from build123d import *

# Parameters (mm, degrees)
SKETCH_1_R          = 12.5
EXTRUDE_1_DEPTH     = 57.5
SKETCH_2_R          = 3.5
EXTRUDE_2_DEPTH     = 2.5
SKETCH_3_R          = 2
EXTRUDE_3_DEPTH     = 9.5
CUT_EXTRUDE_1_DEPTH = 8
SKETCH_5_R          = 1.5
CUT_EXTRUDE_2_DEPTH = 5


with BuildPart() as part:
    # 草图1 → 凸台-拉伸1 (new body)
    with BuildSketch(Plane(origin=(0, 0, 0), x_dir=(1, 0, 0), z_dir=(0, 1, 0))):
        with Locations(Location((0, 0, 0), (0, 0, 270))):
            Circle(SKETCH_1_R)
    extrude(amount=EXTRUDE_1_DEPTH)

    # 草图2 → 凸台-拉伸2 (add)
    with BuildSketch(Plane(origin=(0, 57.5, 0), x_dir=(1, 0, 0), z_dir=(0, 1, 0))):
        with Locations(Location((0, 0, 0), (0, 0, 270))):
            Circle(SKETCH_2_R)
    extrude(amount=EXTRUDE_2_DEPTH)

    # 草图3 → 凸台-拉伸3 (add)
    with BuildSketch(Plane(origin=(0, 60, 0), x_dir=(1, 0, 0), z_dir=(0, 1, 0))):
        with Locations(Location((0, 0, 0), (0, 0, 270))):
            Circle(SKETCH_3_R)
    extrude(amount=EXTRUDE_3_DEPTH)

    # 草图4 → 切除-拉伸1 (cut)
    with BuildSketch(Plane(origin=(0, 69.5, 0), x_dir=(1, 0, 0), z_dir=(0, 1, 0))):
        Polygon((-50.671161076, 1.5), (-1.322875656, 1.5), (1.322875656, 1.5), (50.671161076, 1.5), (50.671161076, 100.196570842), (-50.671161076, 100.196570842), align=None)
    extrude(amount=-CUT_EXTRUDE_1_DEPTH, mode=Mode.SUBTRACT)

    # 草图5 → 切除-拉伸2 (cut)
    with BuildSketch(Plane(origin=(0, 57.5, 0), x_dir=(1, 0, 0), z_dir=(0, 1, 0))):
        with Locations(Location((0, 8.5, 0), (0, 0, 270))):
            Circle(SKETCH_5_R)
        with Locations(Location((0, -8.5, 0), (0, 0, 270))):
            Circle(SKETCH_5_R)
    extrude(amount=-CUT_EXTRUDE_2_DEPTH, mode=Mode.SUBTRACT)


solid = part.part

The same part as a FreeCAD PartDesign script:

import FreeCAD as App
import Part
import Sketcher
Q = App.Units.Quantity

doc = App.newDocument("Part")
body = doc.addObject("PartDesign::Body", "Body")

# Sketch on XZ plane
sketch1 = doc.addObject("Sketcher::SketchObject", "Sketch")
body.addObject(sketch1)
sketch1.AttachmentSupport = (doc.XZ_Plane, [""])
sketch1.MapMode = "FlatFace"
sketch1.addGeometry(Part.Circle(App.Vector(0, 0, 0), App.Vector(0, 0, 1), 12), False)
sketch1.addConstraint([
    Sketcher.Constraint("Coincident", 0, 3, -1, 1),
    Sketcher.Constraint("Diameter", 0, Q("25 mm")),
])
pad1 = doc.addObject("PartDesign::Pad", "Pad")
body.addObject(pad1)
pad1.Profile = sketch1
pad1.Length = 57.5
pad1.Reversed = True

# Sketch on XZ plane
sketch2 = doc.addObject("Sketcher::SketchObject", "Sketch001")
body.addObject(sketch2)
sketch2.AttachmentSupport = (doc.XZ_Plane, [""])
sketch2.MapMode = "FlatFace"
sketch2.AttachmentOffset = App.Placement(App.Vector(0, 0, -57.5), App.Rotation())
sketch2.addGeometry(Part.Circle(App.Vector(0, 0, 0), App.Vector(0, 0, 1), 3.5), False)
sketch2.addConstraint([
    Sketcher.Constraint("Coincident", 0, 3, -1, 1),
    Sketcher.Constraint("Diameter", 0, Q("7 mm")),
])
pad2 = doc.addObject("PartDesign::Pad", "Pad001")
body.addObject(pad2)
pad2.Profile = sketch2
pad2.Length = 2.5
pad2.Reversed = True

# Sketch on XZ plane
sketch3 = doc.addObject("Sketcher::SketchObject", "Sketch002")
body.addObject(sketch3)
sketch3.AttachmentSupport = (doc.XZ_Plane, [""])
sketch3.MapMode = "FlatFace"
sketch3.AttachmentOffset = App.Placement(App.Vector(0, 0, -60), App.Rotation())
sketch3.addGeometry(Part.Circle(App.Vector(0, 0, 0), App.Vector(0, 0, 1), 2), False)
sketch3.addConstraint([
    Sketcher.Constraint("Coincident", 0, 3, -1, 1),
    Sketcher.Constraint("Diameter", 0, Q("4 mm")),
])
pad3 = doc.addObject("PartDesign::Pad", "Pad002")
body.addObject(pad3)
pad3.Profile = sketch3
pad3.Length = 9.5
pad3.Reversed = True

# Sketch on XZ plane
sketch4 = doc.addObject("Sketcher::SketchObject", "Sketch003")
body.addObject(sketch4)
sketch4.AttachmentSupport = (doc.XZ_Plane, [""])
sketch4.MapMode = "FlatFace"
sketch4.AttachmentOffset = App.Placement(App.Vector(0, 0, -69.5), App.Rotation())
sketch4.addGeometry([
    Part.LineSegment(App.Vector(-51, -2, 0), App.Vector(51, -2, 0)),
    Part.LineSegment(App.Vector(51, -2, 0), App.Vector(51, -100, 0)),
    Part.LineSegment(App.Vector(51, -100, 0), App.Vector(-51, -100, 0)),
    Part.LineSegment(App.Vector(-51, -100, 0), App.Vector(-51, -2, 0)),
], False)
sketch4.addConstraint([
    Sketcher.Constraint("Coincident", 0, 2, 1, 1),
    Sketcher.Constraint("Coincident", 1, 2, 2, 1),
    Sketcher.Constraint("Coincident", 2, 2, 3, 1),
    Sketcher.Constraint("Coincident", 3, 2, 0, 1),
    Sketcher.Constraint("Horizontal", 0),
    Sketcher.Constraint("Vertical", 1),
    Sketcher.Constraint("Horizontal", 2),
    Sketcher.Constraint("Vertical", 3),
    Sketcher.Constraint("DistanceY", 0, 2, -1, 1, Q("1.5 mm")),
    Sketcher.Constraint("DistanceY", 1, 2, 1, 1, Q("98.696571 mm")),
    Sketcher.Constraint("DistanceX", 0, 1, 0, 2, Q("101.342322 mm")),
    Sketcher.Constraint("DistanceX", -1, 1, 0, 2, Q("50.671161 mm")),
])
pocket1 = doc.addObject("PartDesign::Pocket", "Pocket")
body.addObject(pocket1)
pocket1.Profile = sketch4
pocket1.Length = 8
pocket1.Reversed = True

# Sketch on XZ plane
sketch5 = doc.addObject("Sketcher::SketchObject", "Sketch004")
body.addObject(sketch5)
sketch5.AttachmentSupport = (doc.XZ_Plane, [""])
sketch5.MapMode = "FlatFace"
sketch5.AttachmentOffset = App.Placement(App.Vector(0, 0, -57.5), App.Rotation())
sketch5.addGeometry([
    Part.Circle(App.Vector(0, -8.5, 0), App.Vector(0, 0, 1), 1.5),
    Part.Circle(App.Vector(0, 8.5, 0), App.Vector(0, 0, 1), 1.5),
], False)
sketch5.addConstraint([
    Sketcher.Constraint("Equal", 0, 1),
    Sketcher.Constraint("Symmetric", 0, 3, 1, 3, -1, 1),
    Sketcher.Constraint("PointOnObject", 0, 3, -2),
    Sketcher.Constraint("Diameter", 0, Q("3 mm")),
    Sketcher.Constraint("DistanceY", 0, 3, 1, 3, Q("17 mm")),
])
pocket2 = doc.addObject("PartDesign::Pocket", "Pocket001")
body.addObject(pocket2)
pocket2.Profile = sketch5
pocket2.Length = 5
pocket2.Reversed = True

doc.recompute()
